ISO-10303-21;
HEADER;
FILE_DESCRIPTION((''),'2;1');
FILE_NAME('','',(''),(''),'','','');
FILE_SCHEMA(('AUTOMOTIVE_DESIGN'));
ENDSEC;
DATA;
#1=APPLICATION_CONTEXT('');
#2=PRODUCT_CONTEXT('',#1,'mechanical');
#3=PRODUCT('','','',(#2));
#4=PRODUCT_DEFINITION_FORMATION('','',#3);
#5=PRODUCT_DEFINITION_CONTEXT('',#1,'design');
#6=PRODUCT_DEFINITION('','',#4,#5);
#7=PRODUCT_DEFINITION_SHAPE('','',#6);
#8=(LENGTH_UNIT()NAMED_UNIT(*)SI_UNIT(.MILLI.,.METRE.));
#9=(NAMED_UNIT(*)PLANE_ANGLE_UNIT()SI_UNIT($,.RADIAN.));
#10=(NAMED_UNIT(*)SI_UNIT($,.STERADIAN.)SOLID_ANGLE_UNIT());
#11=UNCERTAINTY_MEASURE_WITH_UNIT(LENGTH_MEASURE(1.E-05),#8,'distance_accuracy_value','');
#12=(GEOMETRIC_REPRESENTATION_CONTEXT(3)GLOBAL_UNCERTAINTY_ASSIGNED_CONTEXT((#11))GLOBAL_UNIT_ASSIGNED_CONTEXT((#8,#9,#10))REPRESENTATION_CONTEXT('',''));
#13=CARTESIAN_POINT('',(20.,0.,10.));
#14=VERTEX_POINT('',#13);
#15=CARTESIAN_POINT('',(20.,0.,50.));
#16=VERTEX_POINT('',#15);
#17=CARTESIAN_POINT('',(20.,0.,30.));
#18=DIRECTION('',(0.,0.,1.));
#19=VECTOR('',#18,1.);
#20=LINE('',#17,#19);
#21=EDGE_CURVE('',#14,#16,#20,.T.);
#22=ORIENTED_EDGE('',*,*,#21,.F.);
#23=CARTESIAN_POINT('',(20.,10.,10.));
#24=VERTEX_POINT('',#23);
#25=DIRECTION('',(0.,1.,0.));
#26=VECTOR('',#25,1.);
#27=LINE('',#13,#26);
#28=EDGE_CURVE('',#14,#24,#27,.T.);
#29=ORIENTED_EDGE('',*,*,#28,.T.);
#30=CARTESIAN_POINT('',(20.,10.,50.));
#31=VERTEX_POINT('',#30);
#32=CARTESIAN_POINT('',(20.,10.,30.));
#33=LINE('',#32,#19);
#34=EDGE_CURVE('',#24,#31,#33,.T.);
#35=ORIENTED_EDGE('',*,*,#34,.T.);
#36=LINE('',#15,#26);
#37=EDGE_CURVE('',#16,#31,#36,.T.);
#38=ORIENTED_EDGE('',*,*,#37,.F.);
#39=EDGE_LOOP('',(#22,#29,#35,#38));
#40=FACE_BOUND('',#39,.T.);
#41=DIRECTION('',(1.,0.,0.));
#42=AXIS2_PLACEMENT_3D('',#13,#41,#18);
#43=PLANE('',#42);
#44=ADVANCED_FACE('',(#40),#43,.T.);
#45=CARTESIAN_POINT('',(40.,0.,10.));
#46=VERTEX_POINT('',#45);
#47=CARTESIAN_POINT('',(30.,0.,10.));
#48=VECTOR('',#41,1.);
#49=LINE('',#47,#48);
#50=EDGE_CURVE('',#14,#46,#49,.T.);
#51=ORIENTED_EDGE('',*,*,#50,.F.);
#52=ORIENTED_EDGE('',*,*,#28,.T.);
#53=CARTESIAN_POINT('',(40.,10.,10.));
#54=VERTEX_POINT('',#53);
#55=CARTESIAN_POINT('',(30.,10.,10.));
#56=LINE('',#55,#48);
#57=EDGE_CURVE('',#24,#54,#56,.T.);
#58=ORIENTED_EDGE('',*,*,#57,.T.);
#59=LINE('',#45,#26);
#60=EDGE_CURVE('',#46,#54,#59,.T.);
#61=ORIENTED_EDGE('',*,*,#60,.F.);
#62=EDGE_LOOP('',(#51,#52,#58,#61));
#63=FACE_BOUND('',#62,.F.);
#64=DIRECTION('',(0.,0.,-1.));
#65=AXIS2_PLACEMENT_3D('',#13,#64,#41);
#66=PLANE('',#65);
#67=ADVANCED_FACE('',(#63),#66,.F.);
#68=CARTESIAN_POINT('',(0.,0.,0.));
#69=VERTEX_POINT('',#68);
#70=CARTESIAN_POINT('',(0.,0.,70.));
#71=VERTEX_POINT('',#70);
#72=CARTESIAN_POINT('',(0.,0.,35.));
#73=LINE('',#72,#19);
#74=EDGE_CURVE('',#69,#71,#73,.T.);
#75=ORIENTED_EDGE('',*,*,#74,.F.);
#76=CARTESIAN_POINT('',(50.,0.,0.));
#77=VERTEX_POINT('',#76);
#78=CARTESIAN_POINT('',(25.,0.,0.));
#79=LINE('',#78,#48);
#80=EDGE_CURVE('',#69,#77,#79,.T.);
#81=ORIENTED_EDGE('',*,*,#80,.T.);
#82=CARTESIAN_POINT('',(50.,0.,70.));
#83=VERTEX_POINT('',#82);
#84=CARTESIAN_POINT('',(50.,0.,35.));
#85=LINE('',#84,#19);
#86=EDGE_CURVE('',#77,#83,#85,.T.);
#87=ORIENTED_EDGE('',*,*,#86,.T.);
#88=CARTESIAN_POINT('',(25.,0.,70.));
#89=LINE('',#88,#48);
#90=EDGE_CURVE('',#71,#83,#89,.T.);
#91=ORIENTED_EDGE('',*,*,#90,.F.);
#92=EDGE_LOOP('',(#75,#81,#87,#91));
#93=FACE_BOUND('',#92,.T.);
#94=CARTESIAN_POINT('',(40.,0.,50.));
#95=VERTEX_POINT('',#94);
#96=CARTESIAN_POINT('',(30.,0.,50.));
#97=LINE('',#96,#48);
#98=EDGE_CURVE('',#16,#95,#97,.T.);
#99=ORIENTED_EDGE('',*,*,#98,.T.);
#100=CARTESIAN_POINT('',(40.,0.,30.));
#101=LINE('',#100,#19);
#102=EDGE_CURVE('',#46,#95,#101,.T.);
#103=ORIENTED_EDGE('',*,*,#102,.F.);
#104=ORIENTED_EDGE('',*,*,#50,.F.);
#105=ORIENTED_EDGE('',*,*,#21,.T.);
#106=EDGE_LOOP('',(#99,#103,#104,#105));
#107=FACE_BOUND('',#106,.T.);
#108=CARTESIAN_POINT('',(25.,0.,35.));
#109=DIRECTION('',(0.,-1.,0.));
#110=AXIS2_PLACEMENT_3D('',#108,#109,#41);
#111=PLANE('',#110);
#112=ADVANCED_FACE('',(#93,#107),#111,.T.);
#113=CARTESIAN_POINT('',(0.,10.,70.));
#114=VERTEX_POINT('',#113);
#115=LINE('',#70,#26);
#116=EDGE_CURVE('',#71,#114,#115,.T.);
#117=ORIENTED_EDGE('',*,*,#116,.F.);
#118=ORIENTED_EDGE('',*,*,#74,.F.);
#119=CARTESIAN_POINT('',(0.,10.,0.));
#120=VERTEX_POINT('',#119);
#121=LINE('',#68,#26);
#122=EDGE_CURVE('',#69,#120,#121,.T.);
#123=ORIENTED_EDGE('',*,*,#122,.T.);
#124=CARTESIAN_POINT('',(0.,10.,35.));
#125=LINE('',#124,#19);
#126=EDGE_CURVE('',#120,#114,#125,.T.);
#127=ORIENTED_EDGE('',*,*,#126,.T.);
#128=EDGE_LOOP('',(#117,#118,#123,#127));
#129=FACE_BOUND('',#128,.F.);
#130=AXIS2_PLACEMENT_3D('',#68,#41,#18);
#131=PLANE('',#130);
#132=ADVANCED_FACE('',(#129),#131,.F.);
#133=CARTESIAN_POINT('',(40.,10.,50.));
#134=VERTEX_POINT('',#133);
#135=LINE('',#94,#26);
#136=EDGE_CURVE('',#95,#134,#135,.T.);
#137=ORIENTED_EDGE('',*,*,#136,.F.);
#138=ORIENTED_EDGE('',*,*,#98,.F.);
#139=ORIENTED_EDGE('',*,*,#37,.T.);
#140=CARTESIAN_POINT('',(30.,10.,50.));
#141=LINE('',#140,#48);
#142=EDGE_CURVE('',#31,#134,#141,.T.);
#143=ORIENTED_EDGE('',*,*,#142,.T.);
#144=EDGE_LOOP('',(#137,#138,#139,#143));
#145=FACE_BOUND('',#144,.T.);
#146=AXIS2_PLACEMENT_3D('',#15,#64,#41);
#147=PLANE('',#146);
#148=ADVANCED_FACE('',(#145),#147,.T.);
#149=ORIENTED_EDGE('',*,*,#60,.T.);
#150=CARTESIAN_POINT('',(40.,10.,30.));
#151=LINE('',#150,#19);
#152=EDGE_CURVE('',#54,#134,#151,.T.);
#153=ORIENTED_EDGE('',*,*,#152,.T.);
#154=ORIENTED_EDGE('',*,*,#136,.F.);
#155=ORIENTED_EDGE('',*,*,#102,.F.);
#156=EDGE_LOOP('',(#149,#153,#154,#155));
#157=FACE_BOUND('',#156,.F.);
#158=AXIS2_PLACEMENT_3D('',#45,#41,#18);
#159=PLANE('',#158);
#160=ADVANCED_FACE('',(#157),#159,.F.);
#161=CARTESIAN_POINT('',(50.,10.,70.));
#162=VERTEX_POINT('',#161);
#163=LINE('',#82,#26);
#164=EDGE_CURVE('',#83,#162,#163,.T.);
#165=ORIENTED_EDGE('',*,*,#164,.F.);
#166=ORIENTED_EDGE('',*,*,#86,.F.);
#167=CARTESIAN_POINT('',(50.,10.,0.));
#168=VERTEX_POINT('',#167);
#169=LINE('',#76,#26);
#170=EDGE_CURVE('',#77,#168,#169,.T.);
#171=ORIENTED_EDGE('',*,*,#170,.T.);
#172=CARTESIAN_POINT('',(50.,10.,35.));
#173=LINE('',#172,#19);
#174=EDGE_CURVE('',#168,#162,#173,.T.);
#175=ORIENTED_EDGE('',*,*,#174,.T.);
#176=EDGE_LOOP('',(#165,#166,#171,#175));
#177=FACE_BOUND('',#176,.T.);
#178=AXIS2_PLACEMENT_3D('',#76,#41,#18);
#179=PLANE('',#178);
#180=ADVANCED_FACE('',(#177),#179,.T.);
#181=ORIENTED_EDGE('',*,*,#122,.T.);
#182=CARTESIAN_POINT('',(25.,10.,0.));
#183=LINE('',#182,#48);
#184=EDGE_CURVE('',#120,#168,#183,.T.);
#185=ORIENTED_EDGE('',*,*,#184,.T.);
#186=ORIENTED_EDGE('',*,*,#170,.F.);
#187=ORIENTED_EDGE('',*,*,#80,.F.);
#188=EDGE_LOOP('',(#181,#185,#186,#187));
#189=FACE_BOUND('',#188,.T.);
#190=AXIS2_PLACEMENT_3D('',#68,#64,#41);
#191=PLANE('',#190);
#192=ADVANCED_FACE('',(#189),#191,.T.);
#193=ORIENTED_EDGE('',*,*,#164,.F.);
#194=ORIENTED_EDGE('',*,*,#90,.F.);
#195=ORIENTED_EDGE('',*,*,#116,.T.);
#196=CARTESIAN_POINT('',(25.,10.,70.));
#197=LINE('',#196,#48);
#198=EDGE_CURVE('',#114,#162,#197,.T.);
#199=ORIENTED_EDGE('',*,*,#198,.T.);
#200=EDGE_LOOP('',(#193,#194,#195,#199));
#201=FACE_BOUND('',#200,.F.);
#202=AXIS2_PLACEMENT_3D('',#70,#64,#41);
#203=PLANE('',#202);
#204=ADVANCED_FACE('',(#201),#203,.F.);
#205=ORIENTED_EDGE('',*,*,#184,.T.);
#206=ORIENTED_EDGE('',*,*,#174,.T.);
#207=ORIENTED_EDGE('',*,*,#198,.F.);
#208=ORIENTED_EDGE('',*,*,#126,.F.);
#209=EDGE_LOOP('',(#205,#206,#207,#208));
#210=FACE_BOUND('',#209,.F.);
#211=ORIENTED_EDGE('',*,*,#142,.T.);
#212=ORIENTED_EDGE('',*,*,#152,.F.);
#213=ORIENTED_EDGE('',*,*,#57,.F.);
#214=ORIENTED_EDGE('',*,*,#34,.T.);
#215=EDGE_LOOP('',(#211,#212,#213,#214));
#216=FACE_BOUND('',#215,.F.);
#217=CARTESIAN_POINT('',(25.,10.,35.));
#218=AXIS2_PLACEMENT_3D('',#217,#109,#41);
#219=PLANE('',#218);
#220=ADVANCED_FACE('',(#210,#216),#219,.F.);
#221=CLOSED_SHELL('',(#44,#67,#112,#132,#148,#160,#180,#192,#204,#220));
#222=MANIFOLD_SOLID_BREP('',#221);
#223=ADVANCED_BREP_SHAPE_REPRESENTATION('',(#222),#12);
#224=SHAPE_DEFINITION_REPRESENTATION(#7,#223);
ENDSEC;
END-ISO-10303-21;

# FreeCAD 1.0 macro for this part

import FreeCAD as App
import Part
import Sketcher
Q = App.Units.Quantity

doc = App.newDocument("Part")
body = doc.addObject("PartDesign::Body", "Body")

# Sketch on XZ plane
sketch1 = body.newObject("Sketcher::SketchObject", "Sketch")
sketch1.AttachmentSupport = (doc.getObject("XZ_Plane"), [""])
sketch1.MapMode = "FlatFace"
sketch1.addGeometry([
    Part.LineSegment(App.Vector(0, 70, 0), App.Vector(0, 0, 0)),  # 0
    Part.LineSegment(App.Vector(0, 0, 0), App.Vector(50, 0, 0)),  # 1
    Part.LineSegment(App.Vector(50, 0, 0), App.Vector(50, 70, 0)),  # 2
    Part.LineSegment(App.Vector(50, 70, 0), App.Vector(0, 70, 0)),  # 3
    Part.LineSegment(App.Vector(40, 10, 0), App.Vector(20, 10, 0)),  # 4
    Part.LineSegment(App.Vector(20, 10, 0), App.Vector(20, 50, 0)),  # 5
    Part.LineSegment(App.Vector(20, 50, 0), App.Vector(40, 50, 0)),  # 6
    Part.LineSegment(App.Vector(40, 50, 0), App.Vector(40, 10, 0)),  # 7
], False)
sketch1.addConstraint([
    Sketcher.Constraint("Coincident", 0, 2, 1, 1),
    Sketcher.Constraint("Coincident", 1, 2, 2, 1),
    Sketcher.Constraint("Coincident", 2, 2, 3, 1),
    Sketcher.Constraint("Coincident", 3, 2, 0, 1),
    Sketcher.Constraint("Coincident", 4, 2, 5, 1),
    Sketcher.Constraint("Coincident", 5, 2, 6, 1),
    Sketcher.Constraint("Coincident", 6, 2, 7, 1),
    Sketcher.Constraint("Coincident", 7, 2, 4, 1),
    Sketcher.Constraint("Vertical", 0),
    Sketcher.Constraint("Horizontal", 1),
    Sketcher.Constraint("Vertical", 2),
    Sketcher.Constraint("Horizontal", 3),
    Sketcher.Constraint("Horizontal", 4),
    Sketcher.Constraint("Vertical", 5),
    Sketcher.Constraint("Horizontal", 6),
    Sketcher.Constraint("Vertical", 7),
    Sketcher.Constraint("Coincident", 0, 2, -1, 1),
    Sketcher.Constraint("DistanceX", 1, 1, 1, 2, Q("50 mm")),
    Sketcher.Constraint("DistanceX", 4, 2, 4, 1, Q("20 mm")),
    Sketcher.Constraint("DistanceY", 0, 2, 0, 1, Q("70 mm")),
    Sketcher.Constraint("DistanceY", 5, 1, 5, 2, Q("40 mm")),
    Sketcher.Constraint("DistanceX", -1, 1, 4, 2, Q("20 mm")),
    Sketcher.Constraint("DistanceY", -1, 1, 4, 2, Q("10 mm")),
])
pad1 = body.newObject("PartDesign::Pad", "Pad")
pad1.Profile = sketch1
pad1.Length = 10
pad1.Reversed = True

doc.recompute()
